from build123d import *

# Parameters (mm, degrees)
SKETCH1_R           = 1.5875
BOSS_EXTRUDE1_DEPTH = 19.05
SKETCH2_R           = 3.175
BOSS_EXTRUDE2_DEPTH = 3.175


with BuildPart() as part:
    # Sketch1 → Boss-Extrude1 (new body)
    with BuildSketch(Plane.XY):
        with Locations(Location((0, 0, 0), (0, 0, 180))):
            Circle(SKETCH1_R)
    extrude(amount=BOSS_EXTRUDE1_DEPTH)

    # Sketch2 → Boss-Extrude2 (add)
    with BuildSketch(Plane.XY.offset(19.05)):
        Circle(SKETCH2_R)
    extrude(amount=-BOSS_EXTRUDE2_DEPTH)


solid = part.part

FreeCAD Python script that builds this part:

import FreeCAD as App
import Part
import Sketcher
from FreeCAD import Vector
Q = App.Units.Quantity

doc = App.newDocument("Part")
params = doc.addObject("Spreadsheet::Sheet", "Params")
for row, (alias, value) in enumerate([
    ("sketch1_diameter", "0.125 in"),
    ("pad1_length", "0.75 in"),
    ("sketch2_diameter", "0.25 in"),
    ("pad2_length", "0.125 in"),
], start=1):
    params.set(f"A{row}", alias)
    params.set(f"B{row}", "=" + value)
    params.setAlias(f"B{row}", alias)

body = doc.addObject("PartDesign::Body", "Body")

# Sketch on XY plane
sketch1 = doc.addObject("Sketcher::SketchObject", "Sketch")
body.addObject(sketch1)
sketch1.AttachmentSupport = (doc.XY_Plane, [""])
sketch1.MapMode = "FlatFace"
sketch1.addGeometry(Part.Circle(Vector(0, 0, 0), Vector(0, 0, 1), 1.6), False)
sketch1.addConstraint(Sketcher.Constraint("Coincident", 0, 3, -1, 1))
sketch1.addConstraint(Sketcher.Constraint("Diameter", 0, Q("0.125 in")))
sketch1.setExpression("Constraints[1]", "Params.sketch1_diameter")
pad1 = doc.addObject("PartDesign::Pad", "Pad")
body.addObject(pad1)
pad1.Profile = sketch1
pad1.setExpression("Length", "Params.pad1_length")

# Sketch on XY plane
sketch2 = doc.addObject("Sketcher::SketchObject", "Sketch001")
body.addObject(sketch2)
sketch2.AttachmentSupport = (doc.XY_Plane, [""])
sketch2.MapMode = "FlatFace"
sketch2.AttachmentOffset = App.Placement(Vector(0, 0, 0.75 * 25.4), App.Rotation())
sketch2.addGeometry(Part.Circle(Vector(0, 0, 0), Vector(0, 0, 1), 3.2), False)
sketch2.addConstraint(Sketcher.Constraint("Coincident", 0, 3, -1, 1))
sketch2.addConstraint(Sketcher.Constraint("Diameter", 0, Q("0.25 in")))
sketch2.setExpression("Constraints[1]", "Params.sketch2_diameter")
pad2 = doc.addObject("PartDesign::Pad", "Pad001")
body.addObject(pad2)
pad2.Profile = sketch2
pad2.setExpression("Length", "Params.pad2_length")
pad2.Reversed = True

doc.recompute()
